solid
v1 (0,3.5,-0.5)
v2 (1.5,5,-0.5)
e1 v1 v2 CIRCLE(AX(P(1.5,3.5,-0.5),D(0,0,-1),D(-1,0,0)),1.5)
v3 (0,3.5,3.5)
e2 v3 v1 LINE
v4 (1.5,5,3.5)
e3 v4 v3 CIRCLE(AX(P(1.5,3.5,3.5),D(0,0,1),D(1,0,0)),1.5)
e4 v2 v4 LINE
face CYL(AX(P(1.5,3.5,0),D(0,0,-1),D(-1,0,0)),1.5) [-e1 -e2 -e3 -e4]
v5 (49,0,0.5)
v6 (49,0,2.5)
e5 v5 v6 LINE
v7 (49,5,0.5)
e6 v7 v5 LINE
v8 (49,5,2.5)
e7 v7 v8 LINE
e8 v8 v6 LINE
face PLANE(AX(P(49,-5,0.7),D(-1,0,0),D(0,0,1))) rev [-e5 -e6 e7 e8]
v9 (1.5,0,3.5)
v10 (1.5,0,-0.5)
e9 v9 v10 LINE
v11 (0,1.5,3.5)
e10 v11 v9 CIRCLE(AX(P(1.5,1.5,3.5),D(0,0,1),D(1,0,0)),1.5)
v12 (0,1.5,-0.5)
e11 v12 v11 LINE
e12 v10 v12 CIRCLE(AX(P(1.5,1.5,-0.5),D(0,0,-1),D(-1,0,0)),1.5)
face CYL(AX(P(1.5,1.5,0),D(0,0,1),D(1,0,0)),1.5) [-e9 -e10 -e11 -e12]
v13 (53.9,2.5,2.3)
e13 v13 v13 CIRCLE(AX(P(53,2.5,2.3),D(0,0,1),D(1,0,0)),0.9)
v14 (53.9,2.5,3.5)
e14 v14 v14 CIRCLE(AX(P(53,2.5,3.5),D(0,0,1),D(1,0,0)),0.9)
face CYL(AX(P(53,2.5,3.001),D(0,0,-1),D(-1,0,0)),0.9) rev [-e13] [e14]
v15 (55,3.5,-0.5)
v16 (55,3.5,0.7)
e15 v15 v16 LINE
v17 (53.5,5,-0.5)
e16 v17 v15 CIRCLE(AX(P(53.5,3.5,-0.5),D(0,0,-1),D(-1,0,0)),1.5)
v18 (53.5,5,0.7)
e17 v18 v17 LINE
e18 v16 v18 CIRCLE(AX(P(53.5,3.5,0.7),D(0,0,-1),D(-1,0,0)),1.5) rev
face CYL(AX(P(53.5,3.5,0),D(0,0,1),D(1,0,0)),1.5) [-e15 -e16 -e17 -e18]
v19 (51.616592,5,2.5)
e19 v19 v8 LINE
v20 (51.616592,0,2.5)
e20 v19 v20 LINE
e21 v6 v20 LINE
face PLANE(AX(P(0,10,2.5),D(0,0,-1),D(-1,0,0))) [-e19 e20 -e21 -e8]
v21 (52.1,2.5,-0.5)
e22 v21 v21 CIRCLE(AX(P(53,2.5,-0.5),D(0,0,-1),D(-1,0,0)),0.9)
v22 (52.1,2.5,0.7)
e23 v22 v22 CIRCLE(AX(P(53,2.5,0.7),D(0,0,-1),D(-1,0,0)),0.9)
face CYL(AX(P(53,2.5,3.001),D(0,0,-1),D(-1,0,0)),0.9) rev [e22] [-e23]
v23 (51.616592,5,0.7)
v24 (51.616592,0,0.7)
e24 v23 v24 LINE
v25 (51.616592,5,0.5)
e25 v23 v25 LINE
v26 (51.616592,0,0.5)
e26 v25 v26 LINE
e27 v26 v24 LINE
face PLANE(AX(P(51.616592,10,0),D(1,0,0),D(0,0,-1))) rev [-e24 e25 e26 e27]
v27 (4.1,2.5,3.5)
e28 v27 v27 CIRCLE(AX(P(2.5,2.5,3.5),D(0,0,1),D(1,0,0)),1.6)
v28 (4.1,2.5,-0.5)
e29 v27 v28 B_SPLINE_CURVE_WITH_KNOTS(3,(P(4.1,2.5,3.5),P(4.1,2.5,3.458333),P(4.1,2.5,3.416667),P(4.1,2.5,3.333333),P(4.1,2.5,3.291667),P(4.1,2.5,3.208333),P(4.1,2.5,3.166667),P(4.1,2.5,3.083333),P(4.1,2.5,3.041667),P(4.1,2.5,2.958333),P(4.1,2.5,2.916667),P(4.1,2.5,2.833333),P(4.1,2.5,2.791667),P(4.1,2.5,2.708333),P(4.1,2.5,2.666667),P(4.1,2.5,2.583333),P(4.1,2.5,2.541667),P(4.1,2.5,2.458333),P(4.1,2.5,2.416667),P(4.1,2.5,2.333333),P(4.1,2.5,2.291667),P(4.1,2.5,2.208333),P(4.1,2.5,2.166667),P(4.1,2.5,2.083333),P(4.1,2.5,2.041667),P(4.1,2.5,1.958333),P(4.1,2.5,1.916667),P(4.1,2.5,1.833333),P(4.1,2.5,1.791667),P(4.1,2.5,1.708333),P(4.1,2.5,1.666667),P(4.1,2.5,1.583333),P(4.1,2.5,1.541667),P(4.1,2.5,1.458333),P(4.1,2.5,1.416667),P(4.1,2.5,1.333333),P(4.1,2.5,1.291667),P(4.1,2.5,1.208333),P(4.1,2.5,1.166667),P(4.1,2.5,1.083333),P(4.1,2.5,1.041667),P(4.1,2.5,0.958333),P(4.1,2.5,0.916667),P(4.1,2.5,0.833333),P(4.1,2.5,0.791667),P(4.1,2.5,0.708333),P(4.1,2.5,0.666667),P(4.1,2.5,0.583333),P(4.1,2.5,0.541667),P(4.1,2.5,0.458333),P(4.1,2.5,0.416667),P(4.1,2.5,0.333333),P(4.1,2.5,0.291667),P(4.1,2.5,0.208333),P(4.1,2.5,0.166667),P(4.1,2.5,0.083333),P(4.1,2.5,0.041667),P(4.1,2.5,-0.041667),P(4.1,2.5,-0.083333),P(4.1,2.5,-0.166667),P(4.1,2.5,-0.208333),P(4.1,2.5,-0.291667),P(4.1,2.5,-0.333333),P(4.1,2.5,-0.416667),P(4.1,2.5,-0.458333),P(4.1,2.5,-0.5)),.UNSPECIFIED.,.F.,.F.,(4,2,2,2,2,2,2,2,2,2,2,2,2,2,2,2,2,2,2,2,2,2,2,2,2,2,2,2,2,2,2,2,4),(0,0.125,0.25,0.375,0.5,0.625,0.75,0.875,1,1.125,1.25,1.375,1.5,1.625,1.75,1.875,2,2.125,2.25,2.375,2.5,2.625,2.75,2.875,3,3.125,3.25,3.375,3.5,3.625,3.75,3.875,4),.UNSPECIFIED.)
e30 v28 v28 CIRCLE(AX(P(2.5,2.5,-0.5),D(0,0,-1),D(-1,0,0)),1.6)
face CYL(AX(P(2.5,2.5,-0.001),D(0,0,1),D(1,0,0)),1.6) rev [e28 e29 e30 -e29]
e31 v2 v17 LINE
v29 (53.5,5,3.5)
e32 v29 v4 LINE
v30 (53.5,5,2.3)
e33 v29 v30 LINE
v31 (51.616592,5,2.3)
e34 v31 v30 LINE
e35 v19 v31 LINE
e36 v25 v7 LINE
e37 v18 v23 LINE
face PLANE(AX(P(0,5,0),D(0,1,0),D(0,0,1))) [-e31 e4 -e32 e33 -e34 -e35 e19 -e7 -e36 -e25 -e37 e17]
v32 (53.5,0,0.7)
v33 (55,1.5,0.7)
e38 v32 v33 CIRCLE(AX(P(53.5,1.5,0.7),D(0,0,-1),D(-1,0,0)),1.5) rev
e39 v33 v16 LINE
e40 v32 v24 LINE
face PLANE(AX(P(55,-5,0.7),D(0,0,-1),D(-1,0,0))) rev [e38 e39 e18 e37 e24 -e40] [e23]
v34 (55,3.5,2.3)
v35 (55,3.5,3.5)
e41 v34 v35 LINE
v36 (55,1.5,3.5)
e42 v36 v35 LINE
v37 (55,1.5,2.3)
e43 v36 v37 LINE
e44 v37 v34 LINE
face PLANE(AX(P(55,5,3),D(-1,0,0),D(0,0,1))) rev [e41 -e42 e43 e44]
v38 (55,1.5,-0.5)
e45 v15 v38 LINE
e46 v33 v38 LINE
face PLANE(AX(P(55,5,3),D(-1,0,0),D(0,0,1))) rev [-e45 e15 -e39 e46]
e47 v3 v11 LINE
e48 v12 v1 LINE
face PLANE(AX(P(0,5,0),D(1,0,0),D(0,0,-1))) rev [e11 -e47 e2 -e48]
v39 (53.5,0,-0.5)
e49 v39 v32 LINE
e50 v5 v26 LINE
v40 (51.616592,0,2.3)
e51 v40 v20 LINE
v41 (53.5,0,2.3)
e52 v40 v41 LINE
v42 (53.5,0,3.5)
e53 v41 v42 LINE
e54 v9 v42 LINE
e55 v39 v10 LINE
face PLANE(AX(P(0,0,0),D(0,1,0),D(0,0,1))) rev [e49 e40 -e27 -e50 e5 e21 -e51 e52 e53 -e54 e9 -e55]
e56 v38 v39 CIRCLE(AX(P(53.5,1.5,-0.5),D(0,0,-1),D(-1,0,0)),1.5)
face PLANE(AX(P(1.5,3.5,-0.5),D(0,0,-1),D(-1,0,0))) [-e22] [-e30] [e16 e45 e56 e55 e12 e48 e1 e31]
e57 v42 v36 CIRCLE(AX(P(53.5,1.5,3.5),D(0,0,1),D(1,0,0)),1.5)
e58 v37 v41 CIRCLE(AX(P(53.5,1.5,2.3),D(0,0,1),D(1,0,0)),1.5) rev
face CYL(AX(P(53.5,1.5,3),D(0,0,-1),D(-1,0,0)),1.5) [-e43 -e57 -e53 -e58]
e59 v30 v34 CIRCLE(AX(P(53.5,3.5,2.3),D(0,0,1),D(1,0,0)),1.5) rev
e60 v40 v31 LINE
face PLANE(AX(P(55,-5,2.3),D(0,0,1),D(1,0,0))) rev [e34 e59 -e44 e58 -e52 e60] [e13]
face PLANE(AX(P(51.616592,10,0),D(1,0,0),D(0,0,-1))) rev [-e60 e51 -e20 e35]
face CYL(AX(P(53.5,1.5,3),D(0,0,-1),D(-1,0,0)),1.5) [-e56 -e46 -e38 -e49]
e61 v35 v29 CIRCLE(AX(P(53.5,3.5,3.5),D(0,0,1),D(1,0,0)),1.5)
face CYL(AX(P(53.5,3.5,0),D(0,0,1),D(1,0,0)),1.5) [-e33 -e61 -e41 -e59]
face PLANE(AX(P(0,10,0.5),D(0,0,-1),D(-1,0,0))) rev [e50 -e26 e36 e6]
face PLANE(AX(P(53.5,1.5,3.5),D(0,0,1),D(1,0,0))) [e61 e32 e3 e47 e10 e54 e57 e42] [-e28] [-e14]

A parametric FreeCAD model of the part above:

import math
import FreeCAD as App
import Part
import Sketcher

V = App.Vector
Q = App.Units.Quantity


def edges_at(feature, points):
    """Names of the edges that pass closest to the given points."""
    edges = feature.Shape.Edges
    near = lambda p: min(range(len(edges)), key=lambda i: edges[i].distToShape(Part.Vertex(*p))[0])
    return sorted({f"Edge{near(p) + 1}" for p in points})

doc = App.newDocument("Part")
body = doc.addObject("PartDesign::Body", "Body")

# Sketch on XZ plane
sketch1 = body.newObject("Sketcher::SketchObject", "Sketch")
sketch1.AttachmentSupport = (doc.getObject("XZ_Plane"), [""])
sketch1.MapMode = "FlatFace"
sketch1.addGeometry([
    Part.LineSegment(V(0, 0, 0), V(0, 3, 0)),
    Part.LineSegment(V(0, 3, 0), V(55, 3, 0)),
    Part.LineSegment(V(55, 3, 0), V(55, 0, 0)),
    Part.LineSegment(V(55, 0, 0), V(0, 0, 0)),
], False)
sketch1.addConstraint([
    Sketcher.Constraint("Coincident", 0, 2, 1, 1),
    Sketcher.Constraint("Coincident", 1, 2, 2, 1),
    Sketcher.Constraint("Coincident", 2, 2, 3, 1),
    Sketcher.Constraint("Coincident", 3, 2, 0, 1),
    Sketcher.Constraint("Vertical", 0),
    Sketcher.Constraint("Horizontal", 1),
    Sketcher.Constraint("Vertical", 2),
    Sketcher.Constraint("Horizontal", 3),
    Sketcher.Constraint("Coincident", 3, 2, -1, 1),
    Sketcher.Constraint("DistanceX", 1, 1, 1, 2, Q("55 mm")),
    Sketcher.Constraint("DistanceY", 0, 1, 0, 2, Q("3 mm")),
])
pad1 = body.newObject("PartDesign::Pad", "Pad")
pad1.Profile = sketch1
pad1.Length = 5
pad1.Reversed = True

# Sketch on XY plane
sketch2 = body.newObject("Sketcher::SketchObject", "Sketch001")
sketch2.AttachmentSupport = (doc.getObject("XY_Plane"), [""])
sketch2.MapMode = "FlatFace"
sketch2.AttachmentOffset = App.Placement(V(0, 0, 3), App.Rotation())
sketch2.addGeometry(Part.Circle(V(2.5, 2.5, 0), V(0, 0, 1), 1.6), False)
sketch2.addConstraint([
    Sketcher.Constraint("Diameter", 0, Q("3.2 mm")),
    Sketcher.Constraint("DistanceX", -1, 1, 0, 3, Q("2.5 mm")),
    Sketcher.Constraint("DistanceY", -1, 1, 0, 3, Q("2.5 mm")),
])
pocket1 = body.newObject("PartDesign::Pocket", "Pocket")
pocket1.Profile = sketch2
pocket1.Type = "UpToFirst"

# Sketch on XY plane
sketch3 = body.newObject("Sketcher::SketchObject", "Sketch002")
sketch3.AttachmentSupport = (doc.getObject("XY_Plane"), [""])
sketch3.MapMode = "FlatFace"
sketch3.addGeometry(Part.Circle(V(53, 2.5, 0), V(0, 0, 1), 0.9), False)
sketch3.addConstraint([
    Sketcher.Constraint("Diameter", 0, Q("1.8 mm")),
    Sketcher.Constraint("DistanceX", -1, 1, 0, 3, Q("53 mm")),
    Sketcher.Constraint("DistanceY", -1, 1, 0, 3, Q("2.5 mm")),
])
pocket2 = body.newObject("PartDesign::Pocket", "Pocket001")
pocket2.Profile = sketch3
pocket2.Type = "UpToFirst"
pocket2.Reversed = True
doc.recompute()

fillet = body.newObject("PartDesign::Fillet", "Fillet")
fillet.Base = (pocket2, edges_at(pocket2, [
    (55, 5, 1.5),
    (55, 0, 1.5),
    (0, 0, 1.5),
    (0, 5, 1.5),
]))
fillet.Radius = 1.5

# Sketch on XZ plane
sketch4 = body.newObject("Sketcher::SketchObject", "Sketch003")
sketch4.AttachmentSupport = (doc.getObject("XZ_Plane"), [""])
sketch4.MapMode = "FlatFace"
sketch4.AttachmentOffset = App.Placement(V(0, 0, -5), App.Rotation())
sketch4.addGeometry([
    Part.LineSegment(V(49, 0.7, 0), V(49, 2.3, 0)),
    Part.LineSegment(V(49, 2.3, 0), V(55, 2.3, 0)),
    Part.LineSegment(V(55, 2.3, 0), V(55, 0.7, 0)),
    Part.LineSegment(V(55, 0.7, 0), V(49, 0.7, 0)),
], False)
sketch4.addConstraint([
    Sketcher.Constraint("Coincident", 0, 2, 1, 1),
    Sketcher.Constraint("Coincident", 1, 2, 2, 1),
    Sketcher.Constraint("Coincident", 2, 2, 3, 1),
    Sketcher.Constraint("Coincident", 3, 2, 0, 1),
    Sketcher.Constraint("Vertical", 0),
    Sketcher.Constraint("Horizontal", 1),
    Sketcher.Constraint("Vertical", 2),
    Sketcher.Constraint("Horizontal", 3),
    Sketcher.Constraint("DistanceX", 1, 1, 1, 2, Q("6 mm")),
    Sketcher.Constraint("DistanceY", 0, 1, 0, 2, Q("1.6 mm")),
    Sketcher.Constraint("DistanceX", -1, 1, 0, 2, Q("49 mm")),
    Sketcher.Constraint("DistanceY", -1, 1, 0, 2, Q("2.3 mm")),
])
pocket3 = body.newObject("PartDesign::Pocket", "Pocket002")
pocket3.Profile = sketch4
pocket3.Length = 10
pocket3.Reversed = True

# Sketch on XZ plane
sketch5 = body.newObject("Sketcher::SketchObject", "Sketch004")
sketch5.AttachmentSupport = (doc.getObject("XZ_Plane"), [""])
sketch5.MapMode = "FlatFace"
sketch5.addGeometry([
    Part.LineSegment(V(49, 0.7, 0), V(49, 0.5, 0)),  # 0
    Part.LineSegment(V(49, 0.5, 0), V(51.62, 0.5, 0)),  # 1
    Part.LineSegment(V(51.62, 0.5, 0), V(51.62, 0.7, 0)),  # 2
    Part.LineSegment(V(51.62, 0.7, 0), V(49, 0.7, 0)),  # 3
    Part.LineSegment(V(49, 2.5, 0), V(49, 2.3, 0)),  # 4
    Part.LineSegment(V(49, 2.3, 0), V(51.62, 2.3, 0)),  # 5
    Part.LineSegment(V(51.62, 2.3, 0), V(51.62, 2.5, 0)),  # 6
    Part.LineSegment(V(51.62, 2.5, 0), V(49, 2.5, 0)),  # 7
], False)
sketch5.addConstraint([
    Sketcher.Constraint("Coincident", 0, 2, 1, 1),
    Sketcher.Constraint("Coincident", 1, 2, 2, 1),
    Sketcher.Constraint("Coincident", 2, 2, 3, 1),
    Sketcher.Constraint("Coincident", 3, 2, 0, 1),
    Sketcher.Constraint("Coincident", 4, 2, 5, 1),
    Sketcher.Constraint("Coincident", 5, 2, 6, 1),
    Sketcher.Constraint("Coincident", 6, 2, 7, 1),
    Sketcher.Constraint("Coincident", 7, 2, 4, 1),
    Sketcher.Constraint("Vertical", 0),
    Sketcher.Constraint("Horizontal", 1),
    Sketcher.Constraint("Vertical", 2),
    Sketcher.Constraint("Horizontal", 3),
    Sketcher.Constraint("Vertical", 4),
    Sketcher.Constraint("Horizontal", 5),
    Sketcher.Constraint("Vertical", 6),
    Sketcher.Constraint("Horizontal", 7),
    Sketcher.Constraint("Vertical", 3, 2, 4, 2),
    Sketcher.Constraint("Vertical", 2, 2, 5, 2),
    Sketcher.Constraint("Equal", 2, 4),
    Sketcher.Constraint("DistanceY", 0, 2, 0, 1, Q("0.2 mm")),
    Sketcher.Constraint("DistanceX", -1, 1, 0, 2, Q("49 mm")),
    Sketcher.Constraint("DistanceY", 1, 2, 6, 2, Q("2 mm")),
    Sketcher.Constraint("DistanceY", -1, 1, 0, 2, Q("0.5 mm")),
    Sketcher.Constraint("DistanceX", 1, 1, 1, 2, Q("2.616592 mm")),
])
pocket4 = body.newObject("PartDesign::Pocket", "Pocket003")
pocket4.Profile = sketch5
pocket4.Length = 10

# Sketch on XY plane
sketch6 = body.newObject("Sketcher::SketchObject", "Sketch005")
sketch6.AttachmentSupport = (doc.getObject("XY_Plane"), [""])
sketch6.MapMode = "FlatFace"
sketch6.AttachmentOffset = App.Placement(V(0, 0, 3), App.Rotation())
sketch6.addGeometry([
    Part.LineSegment(V(55, 1.5, 0), V(55, 3.5, 0)),  # 0
    Part.ArcOfCircle(Part.Circle(V(53.5, 3.5, 0), V(0, 0, 1), 1.5), math.radians(0), math.radians(90)),  # 1
    Part.LineSegment(V(53.5, 5, 0), V(1.5, 5, 0)),  # 2
    Part.ArcOfCircle(Part.Circle(V(1.5, 3.5, 0), V(0, 0, 1), 1.5), math.radians(90), math.radians(180)),  # 3
    Part.LineSegment(V(0, 3.5, 0), V(0, 1.5, 0)),  # 4
    Part.ArcOfCircle(Part.Circle(V(1.5, 1.5, 0), V(0, 0, 1), 1.5), math.radians(180), math.radians(270)),  # 5
    Part.LineSegment(V(1.5, 0, 0), V(53.5, 0, 0)),  # 6
    Part.ArcOfCircle(Part.Circle(V(53.5, 1.5, 0), V(0, 0, 1), 1.5), math.radians(-90), math.radians(0)),  # 7
    Part.Circle(V(2.5, 2.5, 0), V(0, 0, 1), 1.6),  # 8
    Part.Circle(V(53, 2.5, 0), V(0, 0, 1), 0.9),  # 9
], False)
sketch6.addConstraint([
    Sketcher.Constraint("Tangent", 0, 2, 1, 1),
    Sketcher.Constraint("Tangent", 1, 2, 2, 1),
    Sketcher.Constraint("Tangent", 2, 2, 3, 1),
    Sketcher.Constraint("Tangent", 3, 2, 4, 1),
    Sketcher.Constraint("Tangent", 4, 2, 5, 1),
    Sketcher.Constraint("Tangent", 5, 2, 6, 1),
    Sketcher.Constraint("Tangent", 6, 2, 7, 1),
    Sketcher.Constraint("Tangent", 7, 2, 0, 1),
    Sketcher.Constraint("Vertical", 0),
    Sketcher.Constraint("Horizontal", 2),
    Sketcher.Constraint("Vertical", 4),
    Sketcher.Constraint("Horizontal", 6),
    Sketcher.Constraint("Equal", 1, 3),
    Sketcher.Constraint("Equal", 3, 5),
    Sketcher.Constraint("Equal", 5, 7),
    Sketcher.Constraint("PointOnObject", 3, 2, -2),
    Sketcher.Constraint("PointOnObject", 5, 2, -1),
    Sketcher.Constraint("Horizontal", 8, 3, 9, 3),
    Sketcher.Constraint("Diameter", 8, Q("3.2 mm")),
    Sketcher.Constraint("Diameter", 9, Q("1.8 mm")),
    Sketcher.Constraint("Radius", 1, Q("1.5 mm")),
    Sketcher.Constraint("DistanceX", 2, 2, 2, 1, Q("52 mm")),
    Sketcher.Constraint("DistanceY", 0, 1, 0, 2, Q("2 mm")),
    Sketcher.Constraint("DistanceX", -1, 1, 9, 3, Q("53 mm")),
    Sketcher.Constraint("DistanceX", 3, 3, 8, 3, Q("1 mm")),
    Sketcher.Constraint("DistanceY", 8, 3, 3, 3, Q("1 mm")),
])
pad2 = body.newObject("PartDesign::Pad", "Pad001")
pad2.Profile = sketch6
pad2.Length = 0.5

# Sketch on XY plane
sketch7 = body.newObject("Sketcher::SketchObject", "Sketch006")
sketch7.AttachmentSupport = (doc.getObject("XY_Plane"), [""])
sketch7.MapMode = "FlatFace"
sketch7.AttachmentOffset = App.Placement(V(0, 0, -0.5), App.Rotation())
sketch7.addGeometry([
    Part.LineSegment(V(1.5, 5, 0), V(53.5, 5, 0)),  # 0
    Part.ArcOfCircle(Part.Circle(V(53.5, 3.5, 0), V(0, 0, 1), 1.5), math.radians(0), math.radians(90)),  # 1
    Part.LineSegment(V(55, 3.5, 0), V(55, 1.5, 0)),  # 2
    Part.ArcOfCircle(Part.Circle(V(53.5, 1.5, 0), V(0, 0, 1), 1.5), math.radians(-90), math.radians(0)),  # 3
    Part.LineSegment(V(53.5, 0, 0), V(1.5, 0, 0)),  # 4
    Part.ArcOfCircle(Part.Circle(V(1.5, 1.5, 0), V(0, 0, 1), 1.5), math.radians(180), math.radians(270)),  # 5
    Part.LineSegment(V(0, 1.5, 0), V(0, 3.5, 0)),  # 6
    Part.ArcOfCircle(Part.Circle(V(1.5, 3.5, 0), V(0, 0, 1), 1.5), math.radians(90), math.radians(180)),  # 7
    Part.Circle(V(53, 2.5, 0), V(0, 0, 1), 0.9),  # 8
    Part.Circle(V(2.5, 2.5, 0), V(0, 0, 1), 1.6),  # 9
], False)
sketch7.addConstraint([
    Sketcher.Constraint("Tangent", 0, 2, 1, 2),
    Sketcher.Constraint("Tangent", 1, 1, 2, 1),
    Sketcher.Constraint("Tangent", 2, 2, 3, 2),
    Sketcher.Constraint("Tangent", 3, 1, 4, 1),
    Sketcher.Constraint("Tangent", 4, 2, 5, 2),
    Sketcher.Constraint("Tangent", 5, 1, 6, 1),
    Sketcher.Constraint("Tangent", 6, 2, 7, 2),
    Sketcher.Constraint("Tangent", 7, 1, 0, 1),
    Sketcher.Constraint("Horizontal", 0),
    Sketcher.Constraint("Vertical", 2),
    Sketcher.Constraint("Horizontal", 4),
    Sketcher.Constraint("Vertical", 6),
    Sketcher.Constraint("Equal", 1, 3),
    Sketcher.Constraint("Equal", 3, 5),
    Sketcher.Constraint("Equal", 5, 7),
    Sketcher.Constraint("PointOnObject", 3, 1, -1),
    Sketcher.Constraint("PointOnObject", 5, 1, -2),
    Sketcher.Constraint("Horizontal", 8, 3, 9, 3),
    Sketcher.Constraint("Diameter", 8, Q("1.8 mm")),
    Sketcher.Constraint("Diameter", 9, Q("3.2 mm")),
    Sketcher.Constraint("Radius", 1, Q("1.5 mm")),
    Sketcher.Constraint("DistanceX", 0, 1, 0, 2, Q("52 mm")),
    Sketcher.Constraint("DistanceY", 2, 2, 2, 1, Q("2 mm")),
    Sketcher.Constraint("DistanceX", -1, 1, 8, 3, Q("53 mm")),
    Sketcher.Constraint("DistanceY", 8, 3, 1, 3, Q("1 mm")),
    Sketcher.Constraint("DistanceX", 5, 3, 9, 3, Q("1 mm")),
])
pad3 = body.newObject("PartDesign::Pad", "Pad002")
pad3.Profile = sketch7
pad3.Length = 0.5

doc.recompute()
